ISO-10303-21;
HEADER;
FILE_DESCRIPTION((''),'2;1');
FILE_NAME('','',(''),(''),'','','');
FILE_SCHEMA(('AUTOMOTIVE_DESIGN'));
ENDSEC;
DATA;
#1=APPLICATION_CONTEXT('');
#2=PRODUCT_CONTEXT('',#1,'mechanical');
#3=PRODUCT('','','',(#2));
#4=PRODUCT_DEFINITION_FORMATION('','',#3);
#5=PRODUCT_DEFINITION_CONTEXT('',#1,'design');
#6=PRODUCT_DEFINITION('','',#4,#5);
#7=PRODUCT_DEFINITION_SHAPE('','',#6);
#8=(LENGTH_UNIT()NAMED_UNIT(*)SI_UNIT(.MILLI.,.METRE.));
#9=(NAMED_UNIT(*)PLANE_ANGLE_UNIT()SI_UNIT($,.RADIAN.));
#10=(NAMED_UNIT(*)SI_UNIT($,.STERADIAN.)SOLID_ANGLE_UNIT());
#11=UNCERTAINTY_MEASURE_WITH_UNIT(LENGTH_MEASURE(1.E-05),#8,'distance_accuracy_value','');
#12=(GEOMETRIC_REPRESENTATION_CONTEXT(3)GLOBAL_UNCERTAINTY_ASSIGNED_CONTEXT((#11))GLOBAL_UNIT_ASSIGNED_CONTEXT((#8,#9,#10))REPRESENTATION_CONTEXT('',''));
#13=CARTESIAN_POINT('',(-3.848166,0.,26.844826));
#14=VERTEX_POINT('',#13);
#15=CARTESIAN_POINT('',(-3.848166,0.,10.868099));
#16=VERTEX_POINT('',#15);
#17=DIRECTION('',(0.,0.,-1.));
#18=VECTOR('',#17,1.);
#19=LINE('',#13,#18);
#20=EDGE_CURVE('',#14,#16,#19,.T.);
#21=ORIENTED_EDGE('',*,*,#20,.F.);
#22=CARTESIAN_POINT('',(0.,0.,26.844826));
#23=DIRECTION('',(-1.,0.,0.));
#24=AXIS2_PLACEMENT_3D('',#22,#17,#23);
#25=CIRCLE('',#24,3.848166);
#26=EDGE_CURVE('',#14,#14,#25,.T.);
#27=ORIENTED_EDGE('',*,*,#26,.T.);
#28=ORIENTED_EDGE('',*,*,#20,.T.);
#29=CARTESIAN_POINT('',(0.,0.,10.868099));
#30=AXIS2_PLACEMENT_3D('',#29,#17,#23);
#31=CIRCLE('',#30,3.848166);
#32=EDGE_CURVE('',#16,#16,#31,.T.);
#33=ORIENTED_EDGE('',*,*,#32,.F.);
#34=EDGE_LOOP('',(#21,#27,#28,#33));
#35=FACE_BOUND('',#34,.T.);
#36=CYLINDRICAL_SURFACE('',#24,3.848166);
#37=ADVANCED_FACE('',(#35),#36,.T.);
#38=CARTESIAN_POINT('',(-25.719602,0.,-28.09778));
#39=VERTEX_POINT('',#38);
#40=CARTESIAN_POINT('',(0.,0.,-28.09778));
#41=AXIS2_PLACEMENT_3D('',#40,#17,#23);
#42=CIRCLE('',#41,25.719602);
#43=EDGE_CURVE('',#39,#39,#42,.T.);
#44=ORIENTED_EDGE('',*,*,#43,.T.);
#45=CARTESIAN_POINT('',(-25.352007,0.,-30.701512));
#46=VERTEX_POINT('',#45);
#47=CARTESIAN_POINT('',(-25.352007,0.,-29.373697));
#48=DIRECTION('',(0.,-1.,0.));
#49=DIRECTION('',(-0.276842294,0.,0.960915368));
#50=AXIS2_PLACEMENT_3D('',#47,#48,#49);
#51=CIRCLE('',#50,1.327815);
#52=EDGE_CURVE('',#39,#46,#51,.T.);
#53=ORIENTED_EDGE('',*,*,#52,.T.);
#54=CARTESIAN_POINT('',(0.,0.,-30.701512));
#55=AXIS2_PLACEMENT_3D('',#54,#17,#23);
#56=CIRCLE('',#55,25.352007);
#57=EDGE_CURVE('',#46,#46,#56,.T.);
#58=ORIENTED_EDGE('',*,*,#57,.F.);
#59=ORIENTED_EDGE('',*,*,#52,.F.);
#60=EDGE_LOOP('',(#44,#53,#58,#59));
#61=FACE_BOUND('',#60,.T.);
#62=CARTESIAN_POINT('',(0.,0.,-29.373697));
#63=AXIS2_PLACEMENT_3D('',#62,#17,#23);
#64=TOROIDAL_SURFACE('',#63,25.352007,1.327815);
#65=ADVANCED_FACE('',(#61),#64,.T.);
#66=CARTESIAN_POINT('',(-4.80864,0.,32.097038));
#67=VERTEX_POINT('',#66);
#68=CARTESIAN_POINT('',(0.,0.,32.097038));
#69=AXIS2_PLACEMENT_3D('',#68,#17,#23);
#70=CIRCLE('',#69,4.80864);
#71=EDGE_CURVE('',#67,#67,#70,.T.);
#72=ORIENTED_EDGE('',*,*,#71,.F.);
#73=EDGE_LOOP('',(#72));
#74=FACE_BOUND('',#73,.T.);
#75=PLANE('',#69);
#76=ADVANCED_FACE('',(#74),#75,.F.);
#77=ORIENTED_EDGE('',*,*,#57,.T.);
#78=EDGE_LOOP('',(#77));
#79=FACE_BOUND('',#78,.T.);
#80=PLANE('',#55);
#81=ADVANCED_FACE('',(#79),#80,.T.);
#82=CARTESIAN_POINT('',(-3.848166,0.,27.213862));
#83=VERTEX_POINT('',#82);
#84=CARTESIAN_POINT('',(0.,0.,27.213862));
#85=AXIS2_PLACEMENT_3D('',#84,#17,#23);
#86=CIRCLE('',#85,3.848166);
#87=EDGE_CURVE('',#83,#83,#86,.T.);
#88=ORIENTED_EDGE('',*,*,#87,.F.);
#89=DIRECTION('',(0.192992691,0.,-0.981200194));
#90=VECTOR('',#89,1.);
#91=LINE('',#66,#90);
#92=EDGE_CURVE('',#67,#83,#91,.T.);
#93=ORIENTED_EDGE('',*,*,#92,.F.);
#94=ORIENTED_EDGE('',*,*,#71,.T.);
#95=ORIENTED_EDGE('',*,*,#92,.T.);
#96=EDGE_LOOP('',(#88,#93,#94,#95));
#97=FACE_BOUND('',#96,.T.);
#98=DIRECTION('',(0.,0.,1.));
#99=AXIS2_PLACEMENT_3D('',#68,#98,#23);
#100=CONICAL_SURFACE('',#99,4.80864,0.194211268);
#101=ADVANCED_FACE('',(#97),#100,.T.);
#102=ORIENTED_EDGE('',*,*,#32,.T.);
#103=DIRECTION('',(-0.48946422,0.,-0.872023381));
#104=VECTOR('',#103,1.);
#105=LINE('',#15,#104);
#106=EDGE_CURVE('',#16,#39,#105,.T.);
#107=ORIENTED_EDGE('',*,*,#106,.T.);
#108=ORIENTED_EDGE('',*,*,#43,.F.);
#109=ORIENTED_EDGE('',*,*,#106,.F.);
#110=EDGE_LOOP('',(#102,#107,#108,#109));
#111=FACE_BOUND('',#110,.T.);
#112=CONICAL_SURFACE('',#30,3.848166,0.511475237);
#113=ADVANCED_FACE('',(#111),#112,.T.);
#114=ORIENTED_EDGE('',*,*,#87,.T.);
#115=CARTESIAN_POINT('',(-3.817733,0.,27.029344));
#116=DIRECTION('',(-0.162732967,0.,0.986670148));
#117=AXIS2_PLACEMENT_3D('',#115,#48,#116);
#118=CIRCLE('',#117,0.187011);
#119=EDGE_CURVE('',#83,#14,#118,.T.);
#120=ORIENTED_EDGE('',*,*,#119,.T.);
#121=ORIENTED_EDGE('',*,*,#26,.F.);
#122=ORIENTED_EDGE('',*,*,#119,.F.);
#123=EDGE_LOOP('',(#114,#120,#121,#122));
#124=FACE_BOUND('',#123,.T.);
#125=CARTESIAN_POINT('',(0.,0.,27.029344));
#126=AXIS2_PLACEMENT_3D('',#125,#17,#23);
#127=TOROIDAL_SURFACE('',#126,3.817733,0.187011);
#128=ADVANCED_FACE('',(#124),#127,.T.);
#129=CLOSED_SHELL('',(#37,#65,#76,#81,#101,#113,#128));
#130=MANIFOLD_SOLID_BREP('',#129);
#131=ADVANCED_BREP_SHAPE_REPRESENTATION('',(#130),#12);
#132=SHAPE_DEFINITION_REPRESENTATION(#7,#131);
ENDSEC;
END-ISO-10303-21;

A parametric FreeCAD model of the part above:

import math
import FreeCAD as App
import Part
import Sketcher

doc = App.newDocument("Part")
body = doc.addObject("PartDesign::Body", "Body")

# Sketch on XZ plane
sketch1 = body.newObject("Sketcher::SketchObject", "Sketch")
sketch1.AttachmentSupport = (doc.getObject("XZ_Plane"), [""])
sketch1.MapMode = "FlatFace"
sketch1.addGeometry(Part.LineSegment(App.Vector(0, -30.7, 0), App.Vector(0, 32.1, 0)), False)
sketch1.addGeometry(Part.LineSegment(App.Vector(0, 32.1, 0), App.Vector(-4.81, 32.1, 0)), False)
sketch1.addGeometry(Part.LineSegment(App.Vector(-4.81, 32.1, 0), App.Vector(-3.85, 27.21, 0)), False)
sketch1.addGeometry(Part.ArcOfCircle(Part.Circle(App.Vector(-3.82, 27.03, 0), App.Vector(0, 0, 1), 0.19), math.radians(99), math.radians(261)), False)
sketch1.addGeometry(Part.LineSegment(App.Vector(-3.85, 26.84, 0), App.Vector(-3.85, 10.87, 0)), False)
sketch1.addGeometry(Part.LineSegment(App.Vector(-3.85, 10.87, 0), App.Vector(-25.72, -28.1, 0)), False)
sketch1.addGeometry(Part.ArcOfCircle(Part.Circle(App.Vector(-25.35, -29.37, 0), App.Vector(0, 0, 1), 1.33), math.radians(106), math.radians(270)), False)
sketch1.addGeometry(Part.LineSegment(App.Vector(-25.35, -30.7, 0), App.Vector(0, -30.7, 0)), False)
sketch1.addConstraint(Sketcher.Constraint("Coincident", 0, 2, 1, 1))
sketch1.addConstraint(Sketcher.Constraint("Coincident", 1, 2, 2, 1))
sketch1.addConstraint(Sketcher.Constraint("Coincident", 2, 2, 3, 1))
sketch1.addConstraint(Sketcher.Constraint("Coincident", 3, 2, 4, 1))
sketch1.addConstraint(Sketcher.Constraint("Coincident", 4, 2, 5, 1))
sketch1.addConstraint(Sketcher.Constraint("Coincident", 5, 2, 6, 1))
sketch1.addConstraint(Sketcher.Constraint("Tangent", 6, 2, 7, 1))
sketch1.addConstraint(Sketcher.Constraint("Coincident", 7, 2, 0, 1))
sketch1.addConstraint(Sketcher.Constraint("Vertical", 0))
sketch1.addConstraint(Sketcher.Constraint("Horizontal", 1))
sketch1.addConstraint(Sketcher.Constraint("Vertical", 4))
sketch1.addConstraint(Sketcher.Constraint("Horizontal", 7))
sketch1.addConstraint(Sketcher.Constraint("PointOnObject", 0, 2, -2))
sketch1.addConstraint(Sketcher.Constraint("Vertical", 2, 2, 3, 2))
sketch1.addConstraint(Sketcher.Constraint("Radius", 3, 0.187011))
sketch1.addConstraint(Sketcher.Constraint("Radius", 6, 1.327815))
sketch1.addConstraint(Sketcher.Constraint("DistanceX", 1, 2, 1, 1, 4.80864))
sketch1.addConstraint(Sketcher.Constraint("DistanceY", 0, 1, 0, 2, 62.79855))
sketch1.addConstraint(Sketcher.Constraint("DistanceY", -1, 1, 4, 2, 10.868099))
sketch1.addConstraint(Sketcher.Constraint("DistanceX", 5, 2, -1, 1, 25.719602))
sketch1.addConstraint(Sketcher.Constraint("DistanceX", 7, 1, 7, 2, 25.352007))
sketch1.addConstraint(Sketcher.Constraint("DistanceY", 4, 2, 4, 1, 15.976727))
sketch1.addConstraint(Sketcher.Constraint("DistanceY", -1, 1, 2, 2, 27.213862))
sketch1.addConstraint(Sketcher.Constraint("DistanceY", 5, 2, -1, 1, 28.09778))
sketch1.addConstraint(Sketcher.Constraint("DistanceX", 6, 3, 2, 2, 21.503841))
revolution = body.newObject("PartDesign::Revolution", "Revolution")
revolution.Profile = sketch1
revolution.ReferenceAxis = (sketch1, ["V_Axis"])
revolution.Angle = 360

doc.recompute()
